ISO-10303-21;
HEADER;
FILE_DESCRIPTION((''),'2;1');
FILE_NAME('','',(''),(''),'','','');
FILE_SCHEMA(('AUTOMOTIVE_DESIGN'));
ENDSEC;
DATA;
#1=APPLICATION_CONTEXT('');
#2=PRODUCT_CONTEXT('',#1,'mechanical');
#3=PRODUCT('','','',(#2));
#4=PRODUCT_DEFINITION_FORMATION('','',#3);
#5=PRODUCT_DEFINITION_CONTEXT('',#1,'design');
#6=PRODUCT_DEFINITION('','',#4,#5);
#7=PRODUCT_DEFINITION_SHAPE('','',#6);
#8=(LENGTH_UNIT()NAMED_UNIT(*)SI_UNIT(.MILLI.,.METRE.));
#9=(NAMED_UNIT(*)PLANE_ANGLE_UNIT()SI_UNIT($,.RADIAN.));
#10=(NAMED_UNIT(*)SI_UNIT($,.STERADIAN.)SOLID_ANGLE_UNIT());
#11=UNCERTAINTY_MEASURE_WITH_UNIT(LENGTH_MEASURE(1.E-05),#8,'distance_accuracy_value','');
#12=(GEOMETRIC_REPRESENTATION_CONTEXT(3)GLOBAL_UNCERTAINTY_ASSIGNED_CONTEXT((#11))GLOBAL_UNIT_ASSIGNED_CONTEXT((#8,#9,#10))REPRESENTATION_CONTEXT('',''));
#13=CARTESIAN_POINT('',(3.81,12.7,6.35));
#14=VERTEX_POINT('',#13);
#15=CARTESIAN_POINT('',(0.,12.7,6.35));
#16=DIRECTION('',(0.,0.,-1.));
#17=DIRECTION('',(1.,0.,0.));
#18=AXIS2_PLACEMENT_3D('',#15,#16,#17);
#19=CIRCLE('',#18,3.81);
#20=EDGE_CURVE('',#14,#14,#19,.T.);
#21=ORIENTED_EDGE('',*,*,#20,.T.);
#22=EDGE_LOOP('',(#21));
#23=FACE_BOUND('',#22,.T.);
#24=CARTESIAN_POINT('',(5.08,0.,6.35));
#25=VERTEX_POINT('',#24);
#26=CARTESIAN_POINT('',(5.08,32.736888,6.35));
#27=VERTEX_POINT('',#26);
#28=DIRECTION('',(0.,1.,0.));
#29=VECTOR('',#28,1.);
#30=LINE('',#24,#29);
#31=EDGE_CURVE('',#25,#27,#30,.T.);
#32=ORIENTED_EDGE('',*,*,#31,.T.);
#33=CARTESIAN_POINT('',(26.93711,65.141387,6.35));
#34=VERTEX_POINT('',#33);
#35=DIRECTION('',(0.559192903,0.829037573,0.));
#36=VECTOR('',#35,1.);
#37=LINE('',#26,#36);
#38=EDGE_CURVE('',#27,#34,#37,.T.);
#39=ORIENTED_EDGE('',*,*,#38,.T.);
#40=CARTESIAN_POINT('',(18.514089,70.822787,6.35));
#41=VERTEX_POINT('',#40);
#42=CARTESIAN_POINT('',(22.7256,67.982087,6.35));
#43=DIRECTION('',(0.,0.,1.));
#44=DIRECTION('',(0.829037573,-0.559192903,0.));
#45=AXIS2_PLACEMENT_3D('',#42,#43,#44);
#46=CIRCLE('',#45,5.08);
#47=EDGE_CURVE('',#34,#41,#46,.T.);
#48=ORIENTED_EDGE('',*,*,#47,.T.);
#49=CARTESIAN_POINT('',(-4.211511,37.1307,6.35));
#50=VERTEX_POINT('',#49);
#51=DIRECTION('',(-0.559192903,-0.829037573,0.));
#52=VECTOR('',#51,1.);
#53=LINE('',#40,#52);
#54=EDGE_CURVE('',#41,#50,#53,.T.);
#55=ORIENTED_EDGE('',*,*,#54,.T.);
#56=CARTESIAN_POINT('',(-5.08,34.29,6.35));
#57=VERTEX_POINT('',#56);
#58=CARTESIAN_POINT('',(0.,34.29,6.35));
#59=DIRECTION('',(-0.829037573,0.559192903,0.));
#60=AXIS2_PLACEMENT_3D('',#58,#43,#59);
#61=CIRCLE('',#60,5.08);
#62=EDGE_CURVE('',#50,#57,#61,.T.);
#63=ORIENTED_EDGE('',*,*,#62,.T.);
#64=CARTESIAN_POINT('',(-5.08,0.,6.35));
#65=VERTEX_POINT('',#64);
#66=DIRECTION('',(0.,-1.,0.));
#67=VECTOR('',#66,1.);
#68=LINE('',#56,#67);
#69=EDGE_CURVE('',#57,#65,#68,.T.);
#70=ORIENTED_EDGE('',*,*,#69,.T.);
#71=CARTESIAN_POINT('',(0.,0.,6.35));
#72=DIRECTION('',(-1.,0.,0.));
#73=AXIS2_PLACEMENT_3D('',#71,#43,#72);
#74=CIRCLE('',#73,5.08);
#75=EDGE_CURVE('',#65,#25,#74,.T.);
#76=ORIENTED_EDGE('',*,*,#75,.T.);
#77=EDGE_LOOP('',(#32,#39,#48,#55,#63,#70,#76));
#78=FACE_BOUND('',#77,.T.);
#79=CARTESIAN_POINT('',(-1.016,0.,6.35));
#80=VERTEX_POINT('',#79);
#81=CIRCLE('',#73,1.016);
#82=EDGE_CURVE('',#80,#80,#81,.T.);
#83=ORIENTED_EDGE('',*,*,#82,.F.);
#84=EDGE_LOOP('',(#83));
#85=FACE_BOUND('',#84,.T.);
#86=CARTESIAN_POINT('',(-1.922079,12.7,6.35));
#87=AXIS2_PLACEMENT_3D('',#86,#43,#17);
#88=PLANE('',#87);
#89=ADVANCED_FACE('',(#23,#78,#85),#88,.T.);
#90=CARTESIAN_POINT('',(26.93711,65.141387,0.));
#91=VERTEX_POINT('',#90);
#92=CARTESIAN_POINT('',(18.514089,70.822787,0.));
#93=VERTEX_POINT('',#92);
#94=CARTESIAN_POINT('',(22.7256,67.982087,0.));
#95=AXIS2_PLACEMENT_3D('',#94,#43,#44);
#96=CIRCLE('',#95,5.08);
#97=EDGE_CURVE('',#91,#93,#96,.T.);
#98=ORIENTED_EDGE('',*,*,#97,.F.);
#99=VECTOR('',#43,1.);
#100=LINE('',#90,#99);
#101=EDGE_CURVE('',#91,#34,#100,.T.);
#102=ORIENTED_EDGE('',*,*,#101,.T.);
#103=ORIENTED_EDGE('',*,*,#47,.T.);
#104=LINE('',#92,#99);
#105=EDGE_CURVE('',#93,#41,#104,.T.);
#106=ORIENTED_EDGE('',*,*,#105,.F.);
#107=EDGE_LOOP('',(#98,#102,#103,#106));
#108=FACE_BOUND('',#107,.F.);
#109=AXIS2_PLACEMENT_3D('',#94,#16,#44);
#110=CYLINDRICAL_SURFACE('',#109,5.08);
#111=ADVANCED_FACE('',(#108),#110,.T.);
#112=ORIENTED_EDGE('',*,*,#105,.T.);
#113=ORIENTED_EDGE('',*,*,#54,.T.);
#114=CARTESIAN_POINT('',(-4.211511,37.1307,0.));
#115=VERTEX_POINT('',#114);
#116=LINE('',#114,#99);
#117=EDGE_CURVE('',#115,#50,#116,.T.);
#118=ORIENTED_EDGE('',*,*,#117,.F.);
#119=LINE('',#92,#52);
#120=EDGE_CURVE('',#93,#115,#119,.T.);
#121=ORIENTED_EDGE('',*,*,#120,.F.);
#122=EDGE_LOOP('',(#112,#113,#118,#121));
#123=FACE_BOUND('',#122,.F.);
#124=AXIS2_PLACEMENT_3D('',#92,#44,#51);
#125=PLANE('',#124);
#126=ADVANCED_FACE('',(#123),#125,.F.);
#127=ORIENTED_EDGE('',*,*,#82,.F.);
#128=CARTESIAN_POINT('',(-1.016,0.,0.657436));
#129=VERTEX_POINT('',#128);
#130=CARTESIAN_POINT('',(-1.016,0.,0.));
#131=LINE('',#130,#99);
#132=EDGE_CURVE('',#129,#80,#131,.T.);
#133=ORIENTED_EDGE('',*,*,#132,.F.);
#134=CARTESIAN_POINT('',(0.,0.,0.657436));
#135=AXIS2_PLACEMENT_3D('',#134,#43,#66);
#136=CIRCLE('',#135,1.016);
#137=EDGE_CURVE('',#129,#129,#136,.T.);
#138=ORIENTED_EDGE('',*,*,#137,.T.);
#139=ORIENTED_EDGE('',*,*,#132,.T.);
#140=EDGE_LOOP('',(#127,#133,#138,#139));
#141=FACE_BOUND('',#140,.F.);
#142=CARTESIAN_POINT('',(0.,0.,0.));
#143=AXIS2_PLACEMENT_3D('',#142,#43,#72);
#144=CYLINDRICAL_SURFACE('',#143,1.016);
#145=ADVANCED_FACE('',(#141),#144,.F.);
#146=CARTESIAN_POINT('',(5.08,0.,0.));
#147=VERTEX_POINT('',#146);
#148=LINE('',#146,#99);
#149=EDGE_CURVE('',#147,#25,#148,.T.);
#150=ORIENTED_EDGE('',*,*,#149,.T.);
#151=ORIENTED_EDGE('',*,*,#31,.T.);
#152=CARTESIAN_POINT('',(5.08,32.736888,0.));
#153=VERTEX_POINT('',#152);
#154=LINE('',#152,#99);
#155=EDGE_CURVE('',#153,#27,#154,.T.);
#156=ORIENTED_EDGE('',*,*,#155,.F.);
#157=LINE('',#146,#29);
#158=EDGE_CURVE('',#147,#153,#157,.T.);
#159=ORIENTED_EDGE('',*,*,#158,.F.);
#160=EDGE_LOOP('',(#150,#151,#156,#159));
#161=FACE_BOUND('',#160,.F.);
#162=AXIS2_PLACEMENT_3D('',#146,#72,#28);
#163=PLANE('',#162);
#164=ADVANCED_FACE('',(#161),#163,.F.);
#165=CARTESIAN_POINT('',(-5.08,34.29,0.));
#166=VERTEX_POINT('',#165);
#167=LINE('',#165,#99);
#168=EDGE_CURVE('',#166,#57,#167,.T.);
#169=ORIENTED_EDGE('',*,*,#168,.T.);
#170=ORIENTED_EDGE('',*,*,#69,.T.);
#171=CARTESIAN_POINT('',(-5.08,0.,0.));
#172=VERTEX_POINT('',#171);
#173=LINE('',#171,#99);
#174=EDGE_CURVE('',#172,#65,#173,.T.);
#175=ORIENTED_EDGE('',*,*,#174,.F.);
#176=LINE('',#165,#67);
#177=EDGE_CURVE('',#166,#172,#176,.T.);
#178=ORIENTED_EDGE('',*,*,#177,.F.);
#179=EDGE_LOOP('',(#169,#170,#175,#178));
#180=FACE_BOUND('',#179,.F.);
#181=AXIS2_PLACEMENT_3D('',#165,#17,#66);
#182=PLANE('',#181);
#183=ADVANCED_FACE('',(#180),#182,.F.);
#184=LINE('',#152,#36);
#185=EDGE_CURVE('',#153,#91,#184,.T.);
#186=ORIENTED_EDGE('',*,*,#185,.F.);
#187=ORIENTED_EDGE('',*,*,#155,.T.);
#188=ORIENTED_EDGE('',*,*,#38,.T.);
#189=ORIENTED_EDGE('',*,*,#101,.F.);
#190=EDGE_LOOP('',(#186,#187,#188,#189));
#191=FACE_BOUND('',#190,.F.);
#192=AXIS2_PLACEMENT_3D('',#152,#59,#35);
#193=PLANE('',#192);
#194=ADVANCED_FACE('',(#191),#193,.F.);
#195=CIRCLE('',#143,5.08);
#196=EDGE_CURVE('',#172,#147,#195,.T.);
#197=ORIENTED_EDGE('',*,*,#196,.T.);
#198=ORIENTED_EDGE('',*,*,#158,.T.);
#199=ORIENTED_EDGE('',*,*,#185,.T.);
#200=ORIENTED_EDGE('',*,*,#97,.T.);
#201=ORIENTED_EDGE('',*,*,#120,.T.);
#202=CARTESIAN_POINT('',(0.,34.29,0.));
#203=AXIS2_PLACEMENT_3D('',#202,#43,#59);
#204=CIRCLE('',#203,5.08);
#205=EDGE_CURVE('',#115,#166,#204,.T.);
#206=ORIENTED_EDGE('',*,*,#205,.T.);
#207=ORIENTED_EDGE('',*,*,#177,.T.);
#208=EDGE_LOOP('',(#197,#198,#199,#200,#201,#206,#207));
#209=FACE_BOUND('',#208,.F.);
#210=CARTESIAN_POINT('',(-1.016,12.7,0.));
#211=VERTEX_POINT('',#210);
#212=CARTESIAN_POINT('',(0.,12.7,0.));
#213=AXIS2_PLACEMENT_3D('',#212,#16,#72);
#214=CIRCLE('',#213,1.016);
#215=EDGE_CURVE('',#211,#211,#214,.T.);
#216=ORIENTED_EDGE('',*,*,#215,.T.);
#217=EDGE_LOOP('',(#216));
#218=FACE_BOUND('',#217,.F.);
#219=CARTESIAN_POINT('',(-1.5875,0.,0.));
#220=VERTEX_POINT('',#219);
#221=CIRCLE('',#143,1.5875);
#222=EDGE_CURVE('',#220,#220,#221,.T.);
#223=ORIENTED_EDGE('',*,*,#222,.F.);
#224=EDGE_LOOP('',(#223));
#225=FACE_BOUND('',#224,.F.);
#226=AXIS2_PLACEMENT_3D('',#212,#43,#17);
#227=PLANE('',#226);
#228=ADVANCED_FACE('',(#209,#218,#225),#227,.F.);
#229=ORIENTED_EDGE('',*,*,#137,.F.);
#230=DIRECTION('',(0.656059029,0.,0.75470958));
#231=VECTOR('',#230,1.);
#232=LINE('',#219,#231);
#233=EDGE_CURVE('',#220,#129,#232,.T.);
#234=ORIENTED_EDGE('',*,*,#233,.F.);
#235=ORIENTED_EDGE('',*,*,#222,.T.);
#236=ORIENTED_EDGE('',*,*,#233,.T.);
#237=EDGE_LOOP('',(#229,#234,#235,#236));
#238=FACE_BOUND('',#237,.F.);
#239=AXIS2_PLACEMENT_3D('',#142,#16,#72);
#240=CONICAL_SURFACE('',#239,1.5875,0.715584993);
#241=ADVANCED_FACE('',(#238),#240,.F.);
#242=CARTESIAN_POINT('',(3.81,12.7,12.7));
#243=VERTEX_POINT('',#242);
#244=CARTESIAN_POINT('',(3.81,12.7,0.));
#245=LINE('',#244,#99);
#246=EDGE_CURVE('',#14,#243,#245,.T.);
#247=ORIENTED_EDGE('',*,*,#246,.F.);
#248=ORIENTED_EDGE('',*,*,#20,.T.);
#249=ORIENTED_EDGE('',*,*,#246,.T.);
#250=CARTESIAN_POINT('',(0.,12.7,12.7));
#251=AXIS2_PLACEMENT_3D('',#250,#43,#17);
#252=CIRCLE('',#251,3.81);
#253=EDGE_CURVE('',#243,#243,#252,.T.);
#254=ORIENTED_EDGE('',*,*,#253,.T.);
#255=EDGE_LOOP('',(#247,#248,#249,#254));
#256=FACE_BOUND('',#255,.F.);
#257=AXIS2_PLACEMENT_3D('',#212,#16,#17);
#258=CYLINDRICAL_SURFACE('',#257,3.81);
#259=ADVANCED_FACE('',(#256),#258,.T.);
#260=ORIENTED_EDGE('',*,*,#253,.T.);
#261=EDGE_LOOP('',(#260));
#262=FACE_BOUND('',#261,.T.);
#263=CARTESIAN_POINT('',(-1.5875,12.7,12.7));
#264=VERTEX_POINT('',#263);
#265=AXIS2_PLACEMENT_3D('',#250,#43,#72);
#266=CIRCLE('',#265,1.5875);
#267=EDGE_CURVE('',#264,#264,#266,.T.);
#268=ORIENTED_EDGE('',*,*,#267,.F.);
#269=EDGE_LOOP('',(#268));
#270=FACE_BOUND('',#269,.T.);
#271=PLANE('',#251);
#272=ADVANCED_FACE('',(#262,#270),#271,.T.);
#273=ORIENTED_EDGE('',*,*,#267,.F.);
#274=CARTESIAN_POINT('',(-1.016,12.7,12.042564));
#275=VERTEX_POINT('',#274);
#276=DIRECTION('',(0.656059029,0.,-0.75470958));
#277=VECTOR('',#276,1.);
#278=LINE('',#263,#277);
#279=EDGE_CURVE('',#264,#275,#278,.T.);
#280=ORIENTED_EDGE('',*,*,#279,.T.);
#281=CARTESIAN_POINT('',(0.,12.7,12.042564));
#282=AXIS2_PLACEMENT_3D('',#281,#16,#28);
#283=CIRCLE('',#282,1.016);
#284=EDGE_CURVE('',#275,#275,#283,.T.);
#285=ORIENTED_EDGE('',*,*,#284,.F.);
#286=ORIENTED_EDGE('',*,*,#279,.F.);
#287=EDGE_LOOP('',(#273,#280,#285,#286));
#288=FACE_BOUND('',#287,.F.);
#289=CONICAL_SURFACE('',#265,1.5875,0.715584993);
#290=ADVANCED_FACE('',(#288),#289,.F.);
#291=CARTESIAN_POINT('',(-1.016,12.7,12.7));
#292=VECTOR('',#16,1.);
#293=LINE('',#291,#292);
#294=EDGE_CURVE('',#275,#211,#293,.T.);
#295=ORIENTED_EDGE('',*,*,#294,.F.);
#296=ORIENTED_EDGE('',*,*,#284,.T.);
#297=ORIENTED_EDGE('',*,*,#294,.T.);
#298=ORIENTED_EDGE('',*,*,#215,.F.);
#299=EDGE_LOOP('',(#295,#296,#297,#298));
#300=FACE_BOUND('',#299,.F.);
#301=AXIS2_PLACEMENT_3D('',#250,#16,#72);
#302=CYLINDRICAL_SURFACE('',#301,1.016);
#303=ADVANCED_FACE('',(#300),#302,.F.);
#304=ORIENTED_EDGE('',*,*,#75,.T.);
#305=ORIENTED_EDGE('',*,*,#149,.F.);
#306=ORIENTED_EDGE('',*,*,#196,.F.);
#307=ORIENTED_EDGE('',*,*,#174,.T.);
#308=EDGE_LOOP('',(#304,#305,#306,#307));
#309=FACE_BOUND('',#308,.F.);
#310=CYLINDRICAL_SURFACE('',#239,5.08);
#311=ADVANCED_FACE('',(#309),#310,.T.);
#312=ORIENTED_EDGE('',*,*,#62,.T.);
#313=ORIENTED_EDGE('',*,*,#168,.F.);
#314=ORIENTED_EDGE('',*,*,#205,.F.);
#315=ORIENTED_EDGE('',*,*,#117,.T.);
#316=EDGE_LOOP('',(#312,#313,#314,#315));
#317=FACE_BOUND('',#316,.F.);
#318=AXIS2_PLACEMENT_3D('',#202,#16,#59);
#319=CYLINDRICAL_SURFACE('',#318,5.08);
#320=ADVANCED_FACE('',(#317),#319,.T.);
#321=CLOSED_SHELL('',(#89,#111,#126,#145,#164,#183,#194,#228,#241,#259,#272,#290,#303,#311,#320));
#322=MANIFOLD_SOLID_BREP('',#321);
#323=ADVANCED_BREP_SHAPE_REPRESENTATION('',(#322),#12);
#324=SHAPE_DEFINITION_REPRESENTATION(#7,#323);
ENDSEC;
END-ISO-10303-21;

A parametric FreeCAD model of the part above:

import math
import FreeCAD as App
import Part
import Sketcher
Q = App.Units.Quantity

doc = App.newDocument("Part")
body = doc.addObject("PartDesign::Body", "Body")

sketch1 = body.newObject("Sketcher::SketchObject", "Sketch")
sketch1.AttachmentSupport = (doc.getObject("XY_Plane"), [""])
sketch1.MapMode = "FlatFace"
sketch1.addGeometry([
    Part.ArcOfCircle(Part.Circle(App.Vector(0, 0, 0), App.Vector(0, 0, 1), 5.1), math.radians(180), math.radians(360)),
    Part.LineSegment(App.Vector(5.1, 0, 0), App.Vector(5.1, 32.7, 0)),
    Part.LineSegment(App.Vector(5.1, 32.7, 0), App.Vector(26.9, 65.1, 0)),
    Part.ArcOfCircle(Part.Circle(App.Vector(22.7, 68, 0), App.Vector(0, 0, 1), 5.1), math.radians(-34), math.radians(146)),
    Part.LineSegment(App.Vector(18.5, 70.8, 0), App.Vector(-4.2, 37.1, 0)),
    Part.ArcOfCircle(Part.Circle(App.Vector(0, 34.3, 0), App.Vector(0, 0, 1), 5.1), math.radians(146), math.radians(180)),
    Part.LineSegment(App.Vector(-5.1, 34.3, 0), App.Vector(-5.1, 0, 0)),
], False)
sketch1.addConstraint([
    Sketcher.Constraint("Tangent", 0, 2, 1, 1),
    Sketcher.Constraint("Coincident", 1, 2, 2, 1),
    Sketcher.Constraint("Tangent", 2, 2, 3, 1),
    Sketcher.Constraint("Tangent", 3, 2, 4, 1),
    Sketcher.Constraint("Tangent", 4, 2, 5, 1),
    Sketcher.Constraint("Tangent", 5, 2, 6, 1),
    Sketcher.Constraint("Tangent", 6, 2, 0, 1),
    Sketcher.Constraint("Vertical", 1),
    Sketcher.Constraint("Vertical", 6),
    Sketcher.Constraint("Coincident", 0, 3, -1, 1),
    Sketcher.Constraint("Equal", 0, 3),
    Sketcher.Constraint("Equal", 3, 5),
    Sketcher.Constraint("Parallel", 2, 4),
    Sketcher.Constraint("Radius", 0, Q("0.2 in")),
    Sketcher.Constraint("Angle", 2, Q("56 deg")),
    Sketcher.Constraint("Distance", 4, Q("1.6 in")),
    Sketcher.Constraint("DistanceY", 6, 2, 6, 1, Q("1.35 in")),
])
pad1 = body.newObject("PartDesign::Pad", "Pad")
pad1.Profile = sketch1
pad1.Length = Q("0.25 in")

sketch2 = body.newObject("Sketcher::SketchObject", "Sketch001")
sketch2.AttachmentSupport = (doc.getObject("XY_Plane"), [""])
sketch2.MapMode = "FlatFace"
sketch2.addGeometry(Part.Circle(App.Vector(0, 12.7, 0), App.Vector(0, 0, 1), 3.8), False)
sketch2.addConstraint([
    Sketcher.Constraint("PointOnObject", 0, 3, -2),
    Sketcher.Constraint("Diameter", 0, Q("0.3 in")),
    Sketcher.Constraint("DistanceY", -1, 1, 0, 3, Q("0.5 in")),
])
pad2 = body.newObject("PartDesign::Pad", "Pad001")
pad2.Profile = sketch2
pad2.Length = Q("0.5 in")

sketch3 = body.newObject("Sketcher::SketchObject", "Sketch002")
sketch3.AttachmentSupport = (doc.getObject("XY_Plane"), [""])
sketch3.MapMode = "FlatFace"
sketch3.AttachmentOffset = App.Placement(App.Vector(0, 0, 0.5 * 25.4), App.Rotation())
sketch3.addGeometry(Part.Circle(App.Vector(0, 12.7, 0), App.Vector(0, 0, 1), 1), False)
sketch3.addConstraint([
    Sketcher.Constraint("PointOnObject", 0, 3, -2),
    Sketcher.Constraint("Diameter", 0, Q("0.08 in")),
    Sketcher.Constraint("DistanceY", -1, 1, 0, 3, Q("0.5 in")),
])
doc.recompute()
hole = body.newObject("PartDesign::Hole", "Hole")
hole.Profile = sketch3
hole.ThreadType = "None"
hole.Diameter = Q("0.08 in")
hole.DepthType = "ThroughAll"
hole.HoleCutType = "Countersink"
hole.HoleCutDiameter = Q("0.125 in")
hole.HoleCutCountersinkAngle = 82

sketch4 = body.newObject("Sketcher::SketchObject", "Sketch003")
sketch4.AttachmentSupport = (doc.getObject("XY_Plane"), [""])
sketch4.MapMode = "FlatFace"
sketch4.addGeometry(Part.Circle(App.Vector(0, 0, 0), App.Vector(0, 0, 1), 1), False)
sketch4.addConstraint([
    Sketcher.Constraint("Coincident", 0, 3, -1, 1),
    Sketcher.Constraint("Diameter", 0, Q("0.08 in")),
])
doc.recompute()
hole2 = body.newObject("PartDesign::Hole", "Hole001")
hole2.Profile = sketch4
hole2.ThreadType = "None"
hole2.Diameter = Q("0.08 in")
hole2.DepthType = "ThroughAll"
hole2.HoleCutType = "Countersink"
hole2.HoleCutDiameter = Q("0.125 in")
hole2.HoleCutCountersinkAngle = 82
hole2.Reversed = True

doc.recompute()
